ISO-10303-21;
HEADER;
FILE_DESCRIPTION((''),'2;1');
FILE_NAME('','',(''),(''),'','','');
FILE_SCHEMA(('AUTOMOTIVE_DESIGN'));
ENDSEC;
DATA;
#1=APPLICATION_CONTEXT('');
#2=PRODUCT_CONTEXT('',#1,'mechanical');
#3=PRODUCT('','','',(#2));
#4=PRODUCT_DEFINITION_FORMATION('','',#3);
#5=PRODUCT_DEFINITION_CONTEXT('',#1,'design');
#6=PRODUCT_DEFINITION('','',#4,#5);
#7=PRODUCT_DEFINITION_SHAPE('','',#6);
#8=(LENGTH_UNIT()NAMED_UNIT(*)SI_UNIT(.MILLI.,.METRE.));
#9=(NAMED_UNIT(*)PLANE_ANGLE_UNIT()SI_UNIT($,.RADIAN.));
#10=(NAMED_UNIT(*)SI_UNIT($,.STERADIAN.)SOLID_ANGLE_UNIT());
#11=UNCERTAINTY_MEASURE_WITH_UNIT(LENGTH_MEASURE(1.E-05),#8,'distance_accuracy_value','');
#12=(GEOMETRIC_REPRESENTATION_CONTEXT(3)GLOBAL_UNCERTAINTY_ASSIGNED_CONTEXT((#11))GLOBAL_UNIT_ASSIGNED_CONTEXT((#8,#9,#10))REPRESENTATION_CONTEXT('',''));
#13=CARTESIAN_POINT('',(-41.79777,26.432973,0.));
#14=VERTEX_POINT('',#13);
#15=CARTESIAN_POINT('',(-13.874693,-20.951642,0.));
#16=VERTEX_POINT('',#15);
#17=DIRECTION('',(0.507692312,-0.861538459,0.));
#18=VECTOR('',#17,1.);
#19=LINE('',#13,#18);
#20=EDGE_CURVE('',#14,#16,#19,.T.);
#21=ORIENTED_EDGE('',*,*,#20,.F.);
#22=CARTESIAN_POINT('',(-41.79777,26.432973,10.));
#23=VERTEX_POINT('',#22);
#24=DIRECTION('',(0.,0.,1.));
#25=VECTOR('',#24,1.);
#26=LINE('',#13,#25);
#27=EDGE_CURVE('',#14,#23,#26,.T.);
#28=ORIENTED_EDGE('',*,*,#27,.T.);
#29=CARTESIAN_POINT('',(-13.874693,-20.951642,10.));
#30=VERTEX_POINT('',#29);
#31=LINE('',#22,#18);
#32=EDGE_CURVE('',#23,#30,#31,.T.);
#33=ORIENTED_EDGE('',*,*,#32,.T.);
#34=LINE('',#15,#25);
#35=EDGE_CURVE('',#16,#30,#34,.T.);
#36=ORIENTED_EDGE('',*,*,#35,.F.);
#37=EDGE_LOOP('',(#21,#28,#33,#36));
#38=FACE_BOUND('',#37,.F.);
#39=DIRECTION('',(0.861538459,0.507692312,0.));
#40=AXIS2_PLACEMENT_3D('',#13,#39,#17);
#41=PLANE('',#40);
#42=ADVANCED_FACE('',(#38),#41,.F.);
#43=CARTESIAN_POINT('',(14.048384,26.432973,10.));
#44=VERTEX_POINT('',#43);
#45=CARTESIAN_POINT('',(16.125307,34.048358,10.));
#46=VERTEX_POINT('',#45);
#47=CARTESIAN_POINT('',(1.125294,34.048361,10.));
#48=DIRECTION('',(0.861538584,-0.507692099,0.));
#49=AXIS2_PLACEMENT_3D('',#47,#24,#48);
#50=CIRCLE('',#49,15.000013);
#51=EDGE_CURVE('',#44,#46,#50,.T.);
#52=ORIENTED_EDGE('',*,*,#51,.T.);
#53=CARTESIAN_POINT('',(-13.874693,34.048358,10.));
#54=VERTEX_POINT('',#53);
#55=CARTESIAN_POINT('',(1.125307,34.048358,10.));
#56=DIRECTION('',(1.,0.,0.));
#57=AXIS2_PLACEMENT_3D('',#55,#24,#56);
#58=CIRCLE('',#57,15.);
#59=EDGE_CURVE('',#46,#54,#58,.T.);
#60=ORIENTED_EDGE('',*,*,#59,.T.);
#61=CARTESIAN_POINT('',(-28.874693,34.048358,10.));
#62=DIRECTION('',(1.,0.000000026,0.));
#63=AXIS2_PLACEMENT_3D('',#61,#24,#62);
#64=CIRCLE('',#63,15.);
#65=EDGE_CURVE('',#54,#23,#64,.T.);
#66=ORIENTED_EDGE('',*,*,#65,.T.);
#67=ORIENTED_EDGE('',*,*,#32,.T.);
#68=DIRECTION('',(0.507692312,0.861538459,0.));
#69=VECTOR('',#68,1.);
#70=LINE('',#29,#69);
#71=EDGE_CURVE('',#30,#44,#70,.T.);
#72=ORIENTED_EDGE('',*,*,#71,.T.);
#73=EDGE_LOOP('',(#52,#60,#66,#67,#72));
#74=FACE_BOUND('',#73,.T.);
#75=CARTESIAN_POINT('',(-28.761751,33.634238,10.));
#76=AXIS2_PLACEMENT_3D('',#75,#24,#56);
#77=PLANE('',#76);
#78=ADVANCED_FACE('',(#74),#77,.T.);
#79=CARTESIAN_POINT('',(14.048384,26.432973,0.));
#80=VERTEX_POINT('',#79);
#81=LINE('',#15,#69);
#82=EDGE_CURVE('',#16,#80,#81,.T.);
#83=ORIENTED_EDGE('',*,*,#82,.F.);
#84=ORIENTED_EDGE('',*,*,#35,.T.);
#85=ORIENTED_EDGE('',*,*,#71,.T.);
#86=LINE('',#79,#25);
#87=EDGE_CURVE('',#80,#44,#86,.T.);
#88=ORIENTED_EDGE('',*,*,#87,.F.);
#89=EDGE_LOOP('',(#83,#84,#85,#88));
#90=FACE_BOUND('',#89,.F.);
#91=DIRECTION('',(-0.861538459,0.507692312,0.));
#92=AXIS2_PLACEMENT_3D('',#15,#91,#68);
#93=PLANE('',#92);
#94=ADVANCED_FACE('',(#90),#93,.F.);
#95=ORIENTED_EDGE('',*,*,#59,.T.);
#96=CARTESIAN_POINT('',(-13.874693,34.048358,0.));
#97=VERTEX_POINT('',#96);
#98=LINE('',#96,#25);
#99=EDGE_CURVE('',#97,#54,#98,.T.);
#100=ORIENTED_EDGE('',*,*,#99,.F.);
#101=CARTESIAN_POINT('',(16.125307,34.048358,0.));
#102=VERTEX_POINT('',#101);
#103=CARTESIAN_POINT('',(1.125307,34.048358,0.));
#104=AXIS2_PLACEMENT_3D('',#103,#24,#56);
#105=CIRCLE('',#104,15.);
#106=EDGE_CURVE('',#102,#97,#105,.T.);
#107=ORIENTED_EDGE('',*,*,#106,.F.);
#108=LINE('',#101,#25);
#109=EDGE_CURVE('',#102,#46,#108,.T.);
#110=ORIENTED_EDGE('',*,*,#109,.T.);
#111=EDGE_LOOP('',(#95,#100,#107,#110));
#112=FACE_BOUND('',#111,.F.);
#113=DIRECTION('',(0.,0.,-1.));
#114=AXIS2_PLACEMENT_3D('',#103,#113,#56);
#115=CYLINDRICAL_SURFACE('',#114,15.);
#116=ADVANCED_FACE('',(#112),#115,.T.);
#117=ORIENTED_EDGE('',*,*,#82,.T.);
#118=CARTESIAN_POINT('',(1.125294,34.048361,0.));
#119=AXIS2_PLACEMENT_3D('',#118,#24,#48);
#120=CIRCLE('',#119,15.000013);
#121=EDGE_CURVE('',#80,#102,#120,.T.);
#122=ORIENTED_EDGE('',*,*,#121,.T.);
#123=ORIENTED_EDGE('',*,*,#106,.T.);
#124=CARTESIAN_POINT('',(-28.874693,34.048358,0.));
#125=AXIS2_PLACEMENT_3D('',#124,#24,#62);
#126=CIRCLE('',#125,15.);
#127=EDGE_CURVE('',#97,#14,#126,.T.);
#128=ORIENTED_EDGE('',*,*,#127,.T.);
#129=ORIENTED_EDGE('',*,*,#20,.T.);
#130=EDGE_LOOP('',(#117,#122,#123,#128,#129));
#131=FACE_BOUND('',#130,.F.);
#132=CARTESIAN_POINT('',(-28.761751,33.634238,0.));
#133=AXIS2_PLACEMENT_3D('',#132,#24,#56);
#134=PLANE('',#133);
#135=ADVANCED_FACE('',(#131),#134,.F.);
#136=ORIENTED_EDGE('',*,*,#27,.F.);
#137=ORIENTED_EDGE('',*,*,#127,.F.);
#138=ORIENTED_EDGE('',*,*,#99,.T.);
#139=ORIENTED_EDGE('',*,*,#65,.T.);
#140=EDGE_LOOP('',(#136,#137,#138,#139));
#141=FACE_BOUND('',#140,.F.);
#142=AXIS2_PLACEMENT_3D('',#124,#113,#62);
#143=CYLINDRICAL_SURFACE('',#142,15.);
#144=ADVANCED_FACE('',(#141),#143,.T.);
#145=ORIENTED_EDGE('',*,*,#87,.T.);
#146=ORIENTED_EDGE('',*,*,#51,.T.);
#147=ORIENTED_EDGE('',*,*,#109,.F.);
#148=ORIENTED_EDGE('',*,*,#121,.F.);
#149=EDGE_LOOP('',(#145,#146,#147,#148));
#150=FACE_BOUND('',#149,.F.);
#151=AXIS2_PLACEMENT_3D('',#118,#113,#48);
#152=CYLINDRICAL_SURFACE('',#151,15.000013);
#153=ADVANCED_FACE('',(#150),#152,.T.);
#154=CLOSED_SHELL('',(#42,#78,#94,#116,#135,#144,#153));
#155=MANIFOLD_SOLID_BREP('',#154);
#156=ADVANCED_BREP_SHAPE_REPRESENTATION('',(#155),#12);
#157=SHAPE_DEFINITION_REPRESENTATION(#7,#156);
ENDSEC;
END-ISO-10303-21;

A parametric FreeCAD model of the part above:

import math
import FreeCAD as App
import Part
import Sketcher
from FreeCAD import Vector

doc = App.newDocument("Part")
body = doc.addObject("PartDesign::Body", "Body")

# Sketch on XY plane
sketch1 = body.newObject("Sketcher::SketchObject", "Sketch")
sketch1.AttachmentSupport = (doc.getObject("XY_Plane"), [""])
sketch1.MapMode = "FlatFace"
sketch1.addGeometry([
    Part.ArcOfCircle(Part.Circle(Vector(-29, 34, 0), Vector(0, 0, 1), 15), math.radians(0), math.radians(211)),  # 0
    Part.LineSegment(Vector(-42, 26, 0), Vector(-14, -21, 0)),  # 1
    Part.LineSegment(Vector(-14, -21, 0), Vector(14, 26, 0)),  # 2
    Part.ArcOfCircle(Part.Circle(Vector(1, 34, 0), Vector(0, 0, 1), 15), math.radians(-31), math.radians(0)),  # 3
    Part.ArcOfCircle(Part.Circle(Vector(1, 34, 0), Vector(0, 0, 1), 15), math.radians(0), math.radians(180)),  # 4
], False)
sketch1.addConstraint([
    Sketcher.Constraint("Tangent", 0, 2, 1, 1),
    Sketcher.Constraint("Coincident", 1, 2, 2, 1),
    Sketcher.Constraint("Tangent", 2, 2, 3, 1),
    Sketcher.Constraint("Tangent", 3, 2, 4, 1),
    Sketcher.Constraint("Tangent", 4, 2, 0, 1),
    Sketcher.Constraint("Equal", 0, 4),
    Sketcher.Constraint("Horizontal", 0, 3, 4, 3),
    Sketcher.Constraint("Horizontal", 0, 2, 2, 2),
    Sketcher.Constraint("Horizontal", 4, 3, 3, 2),
    Sketcher.Constraint("Vertical", 1, 2, 4, 2),
    Sketcher.Constraint("Radius", 0, 15.0),
    Sketcher.Constraint("Distance", 1, 55.0),
    Sketcher.Constraint("DistanceY", -1, 1, 3, 3, 34.048361),
    Sketcher.Constraint("DistanceX", 0, 2, -1, 1, 41.79777),
])
pad1 = body.newObject("PartDesign::Pad", "Pad")
pad1.Profile = sketch1
pad1.Length = 10

doc.recompute()
